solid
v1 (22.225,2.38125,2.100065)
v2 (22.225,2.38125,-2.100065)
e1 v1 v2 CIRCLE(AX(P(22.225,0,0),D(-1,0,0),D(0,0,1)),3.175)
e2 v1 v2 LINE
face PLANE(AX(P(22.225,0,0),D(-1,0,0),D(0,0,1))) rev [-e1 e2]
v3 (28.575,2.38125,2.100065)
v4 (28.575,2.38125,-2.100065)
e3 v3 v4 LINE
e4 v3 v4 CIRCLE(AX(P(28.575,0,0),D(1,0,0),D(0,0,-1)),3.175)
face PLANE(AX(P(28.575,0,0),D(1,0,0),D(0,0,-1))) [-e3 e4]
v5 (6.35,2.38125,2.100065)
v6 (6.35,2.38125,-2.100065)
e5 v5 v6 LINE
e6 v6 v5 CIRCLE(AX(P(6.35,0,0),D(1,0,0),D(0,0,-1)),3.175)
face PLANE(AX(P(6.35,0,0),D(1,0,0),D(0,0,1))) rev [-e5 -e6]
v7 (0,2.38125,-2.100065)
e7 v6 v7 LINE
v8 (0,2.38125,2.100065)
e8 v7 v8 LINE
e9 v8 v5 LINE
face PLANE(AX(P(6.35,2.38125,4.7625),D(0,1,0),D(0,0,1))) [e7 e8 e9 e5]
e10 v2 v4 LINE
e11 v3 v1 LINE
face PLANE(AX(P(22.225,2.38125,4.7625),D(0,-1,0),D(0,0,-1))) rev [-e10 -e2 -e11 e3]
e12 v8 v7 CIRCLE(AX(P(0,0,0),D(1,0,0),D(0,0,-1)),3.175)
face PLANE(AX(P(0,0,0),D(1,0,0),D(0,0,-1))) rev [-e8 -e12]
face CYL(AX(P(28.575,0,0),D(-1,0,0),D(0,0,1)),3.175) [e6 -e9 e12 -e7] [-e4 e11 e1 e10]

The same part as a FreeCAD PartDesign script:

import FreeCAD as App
import Part
import Sketcher
from FreeCAD import Vector
Q = App.Units.Quantity


def add_polygon(sketch, points):
    """Adds a closed chain of lines whose ends are joined by coincident constraints."""
    first, n = sketch.GeometryCount, len(points)
    for a, b in zip(points, points[1:] + points[:1]):
        sketch.addGeometry(Part.LineSegment(App.Vector(*a, 0), App.Vector(*b, 0)), False)
    for i in range(n):
        sketch.addConstraint(Sketcher.Constraint("Coincident", first + i, 2, first + (i + 1) % n, 1))

doc = App.newDocument("Part")
body = doc.addObject("PartDesign::Body", "Body")

sketch1 = doc.addObject("Sketcher::SketchObject", "Sketch")
body.addObject(sketch1)
sketch1.AttachmentSupport = (doc.YZ_Plane, [""])
sketch1.MapMode = "FlatFace"
sketch1.addGeometry(Part.Circle(Vector(0, 0, 0), Vector(0, 0, 1), 3.2), False)
sketch1.addConstraint(Sketcher.Constraint("Coincident", 0, 3, -1, 1))
sketch1.addConstraint(Sketcher.Constraint("Diameter", 0, Q("0.25 in")))
pad1 = doc.addObject("PartDesign::Pad", "Pad")
body.addObject(pad1)
pad1.Profile = sketch1
pad1.Length = Q("1.125 in")

sketch2 = doc.addObject("Sketcher::SketchObject", "Sketch001")
body.addObject(sketch2)
sketch2.AttachmentSupport = (doc.YZ_Plane, [""])
sketch2.MapMode = "FlatFace"
sketch2.AttachmentOffset = App.Placement(Vector(0, 0, 1.125 * 25.4), App.Rotation())
add_polygon(sketch2, [(4, 4.8), (2.4, 4.8), (2.4, -4.8), (4, -4.8)])
sketch2.addConstraint(Sketcher.Constraint("Horizontal", 0))
sketch2.addConstraint(Sketcher.Constraint("Vertical", 1))
sketch2.addConstraint(Sketcher.Constraint("Horizontal", 2))
sketch2.addConstraint(Sketcher.Constraint("Vertical", 3))
sketch2.addConstraint(Sketcher.Constraint("DistanceX", 0, 2, 0, 1, Q("0.0625 in")))
sketch2.addConstraint(Sketcher.Constraint("DistanceY", 1, 2, 1, 1, Q("0.375 in")))
sketch2.addConstraint(Sketcher.Constraint("DistanceX", -1, 1, 0, 2, Q("0.09375 in")))
sketch2.addConstraint(Sketcher.Constraint("DistanceY", -1, 1, 0, 2, Q("0.1875 in")))
pocket1 = doc.addObject("PartDesign::Pocket", "Pocket")
body.addObject(pocket1)
pocket1.Profile = sketch2
pocket1.Length = Q("0.25 in")
doc.recompute()

datumplane = doc.addObject("PartDesign::Plane", "DatumPlane")
body.addObject(datumplane)
datumplane.AttachmentSupport = (doc.YZ_Plane, [""])
datumplane.MapMode = "FlatFace"
datumplane.AttachmentOffset = App.Placement(Vector(0, 0, 0.5625 * 25.4), App.Rotation())
mirrored = doc.addObject("PartDesign::Mirrored", "Mirrored")
body.addObject(mirrored)
mirrored.Originals = [pocket1]
mirrored.MirrorPlane = (datumplane, [""])
body.Tip = mirrored

doc.recompute()
